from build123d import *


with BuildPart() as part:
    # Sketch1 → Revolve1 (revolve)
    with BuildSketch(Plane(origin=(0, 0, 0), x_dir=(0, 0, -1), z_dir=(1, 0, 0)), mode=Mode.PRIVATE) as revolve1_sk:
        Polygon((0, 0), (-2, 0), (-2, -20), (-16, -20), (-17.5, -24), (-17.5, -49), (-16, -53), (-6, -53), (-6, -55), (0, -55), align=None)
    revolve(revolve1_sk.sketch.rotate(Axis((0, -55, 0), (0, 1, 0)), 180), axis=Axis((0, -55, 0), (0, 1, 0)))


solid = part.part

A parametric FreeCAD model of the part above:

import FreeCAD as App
import Part
import Sketcher

V = App.Vector

doc = App.newDocument("Part")
body = doc.addObject("PartDesign::Body", "Body")

sketch1 = doc.addObject("Sketcher::SketchObject", "Sketch")
body.addObject(sketch1)
sketch1.AttachmentSupport = (doc.YZ_Plane, [""])
sketch1.MapMode = "FlatFace"
sketch1.addGeometry(Part.LineSegment(V(0, 0, 0), V(0, 2, 0)), False)
sketch1.addGeometry(Part.LineSegment(V(0, 2, 0), V(-20, 2, 0)), False)
sketch1.addGeometry(Part.LineSegment(V(-20, 2, 0), V(-20, 16, 0)), False)
sketch1.addGeometry(Part.LineSegment(V(-20, 16, 0), V(-24, 17.5, 0)), False)
sketch1.addGeometry(Part.LineSegment(V(-24, 17.5, 0), V(-49, 17.5, 0)), False)
sketch1.addGeometry(Part.LineSegment(V(-49, 17.5, 0), V(-53, 16, 0)), False)
sketch1.addGeometry(Part.LineSegment(V(-53, 16, 0), V(-53, 6, 0)), False)
sketch1.addGeometry(Part.LineSegment(V(-53, 6, 0), V(-55, 6, 0)), False)
sketch1.addGeometry(Part.LineSegment(V(-55, 6, 0), V(-55, 0, 0)), False)
sketch1.addGeometry(Part.LineSegment(V(-55, 0, 0), V(0, 0, 0)), False)
sketch1.addConstraint(Sketcher.Constraint("Coincident", 0, 2, 1, 1))
sketch1.addConstraint(Sketcher.Constraint("Coincident", 1, 2, 2, 1))
sketch1.addConstraint(Sketcher.Constraint("Coincident", 2, 2, 3, 1))
sketch1.addConstraint(Sketcher.Constraint("Coincident", 3, 2, 4, 1))
sketch1.addConstraint(Sketcher.Constraint("Coincident", 4, 2, 5, 1))
sketch1.addConstraint(Sketcher.Constraint("Coincident", 5, 2, 6, 1))
sketch1.addConstraint(Sketcher.Constraint("Coincident", 6, 2, 7, 1))
sketch1.addConstraint(Sketcher.Constraint("Coincident", 7, 2, 8, 1))
sketch1.addConstraint(Sketcher.Constraint("Coincident", 8, 2, 9, 1))
sketch1.addConstraint(Sketcher.Constraint("Coincident", 9, 2, 0, 1))
sketch1.addConstraint(Sketcher.Constraint("Vertical", 0))
sketch1.addConstraint(Sketcher.Constraint("Horizontal", 1))
sketch1.addConstraint(Sketcher.Constraint("Vertical", 2))
sketch1.addConstraint(Sketcher.Constraint("Horizontal", 4))
sketch1.addConstraint(Sketcher.Constraint("Vertical", 6))
sketch1.addConstraint(Sketcher.Constraint("Horizontal", 7))
sketch1.addConstraint(Sketcher.Constraint("Vertical", 8))
sketch1.addConstraint(Sketcher.Constraint("Horizontal", 9))
sketch1.addConstraint(Sketcher.Constraint("Coincident", 9, 2, -1, 1))
sketch1.addConstraint(Sketcher.Constraint("Horizontal", 2, 2, 5, 2))
sketch1.addConstraint(Sketcher.Constraint("Equal", 7, 0))
sketch1.addConstraint(Sketcher.Constraint("Equal", 3, 5))
sketch1.addConstraint(Sketcher.Constraint("DistanceX", 1, 2, 1, 1, 20.0))
sketch1.addConstraint(Sketcher.Constraint("DistanceX", 4, 2, 4, 1, 25.0))
sketch1.addConstraint(Sketcher.Constraint("DistanceX", 7, 2, 7, 1, 2.0))
sketch1.addConstraint(Sketcher.Constraint("DistanceX", 9, 1, 9, 2, 55.0))
sketch1.addConstraint(Sketcher.Constraint("DistanceY", 2, 1, 2, 2, 14.0))
sketch1.addConstraint(Sketcher.Constraint("DistanceY", 6, 2, 6, 1, 10.0))
sketch1.addConstraint(Sketcher.Constraint("DistanceY", -1, 1, 3, 2, 17.5))
revolution = doc.addObject("PartDesign::Revolution", "Revolution")
body.addObject(revolution)
revolution.Profile = sketch1
revolution.ReferenceAxis = (sketch1, ["H_Axis"])
revolution.Angle = 360

doc.recompute()
